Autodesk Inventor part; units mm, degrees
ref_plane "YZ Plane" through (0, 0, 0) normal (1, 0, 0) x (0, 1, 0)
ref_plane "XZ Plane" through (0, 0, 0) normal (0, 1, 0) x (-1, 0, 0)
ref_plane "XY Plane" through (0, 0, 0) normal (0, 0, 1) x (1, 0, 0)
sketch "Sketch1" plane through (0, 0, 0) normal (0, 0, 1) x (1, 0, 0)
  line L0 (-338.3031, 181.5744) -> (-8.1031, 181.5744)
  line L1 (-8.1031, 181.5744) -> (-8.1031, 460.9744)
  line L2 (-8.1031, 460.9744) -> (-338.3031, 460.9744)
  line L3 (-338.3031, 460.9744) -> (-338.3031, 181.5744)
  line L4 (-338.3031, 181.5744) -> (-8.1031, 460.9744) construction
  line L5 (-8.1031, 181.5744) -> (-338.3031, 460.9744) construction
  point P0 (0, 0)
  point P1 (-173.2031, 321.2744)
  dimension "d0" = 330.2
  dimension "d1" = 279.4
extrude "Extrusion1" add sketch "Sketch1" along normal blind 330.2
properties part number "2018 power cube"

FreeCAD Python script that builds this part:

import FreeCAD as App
import Part
import Sketcher
Q = App.Units.Quantity

doc = App.newDocument("Part")
body = doc.addObject("PartDesign::Body", "Body")

# Sketch on XY plane
sketch1 = body.newObject("Sketcher::SketchObject", "Sketch")
sketch1.AttachmentSupport = (doc.getObject("XY_Plane"), [""])
sketch1.MapMode = "FlatFace"
sketch1.addGeometry(Part.LineSegment(App.Vector(-338, 461, 0), App.Vector(-338, 182, 0)), False)
sketch1.addGeometry(Part.LineSegment(App.Vector(-338, 182, 0), App.Vector(-8, 182, 0)), False)
sketch1.addGeometry(Part.LineSegment(App.Vector(-8, 182, 0), App.Vector(-8, 461, 0)), False)
sketch1.addGeometry(Part.LineSegment(App.Vector(-8, 461, 0), App.Vector(-338, 461, 0)), False)
sketch1.addConstraint(Sketcher.Constraint("Coincident", 0, 2, 1, 1))
sketch1.addConstraint(Sketcher.Constraint("Coincident", 1, 2, 2, 1))
sketch1.addConstraint(Sketcher.Constraint("Coincident", 2, 2, 3, 1))
sketch1.addConstraint(Sketcher.Constraint("Coincident", 3, 2, 0, 1))
sketch1.addConstraint(Sketcher.Constraint("Vertical", 0))
sketch1.addConstraint(Sketcher.Constraint("Horizontal", 1))
sketch1.addConstraint(Sketcher.Constraint("Vertical", 2))
sketch1.addConstraint(Sketcher.Constraint("Horizontal", 3))
sketch1.addConstraint(Sketcher.Constraint("DistanceX", 1, 1, 1, 2, Q("13 in")))
sketch1.addConstraint(Sketcher.Constraint("DistanceY", 0, 2, 0, 1, Q("11 in")))
sketch1.addConstraint(Sketcher.Constraint("DistanceY", -1, 1, 0, 2, Q("7.1486 in")))
sketch1.addConstraint(Sketcher.Constraint("DistanceX", 0, 2, -1, 1, 338.303))
pad1 = body.newObject("PartDesign::Pad", "Pad")
pad1.Profile = sketch1
pad1.Length = Q("13 in")

doc.recompute()
